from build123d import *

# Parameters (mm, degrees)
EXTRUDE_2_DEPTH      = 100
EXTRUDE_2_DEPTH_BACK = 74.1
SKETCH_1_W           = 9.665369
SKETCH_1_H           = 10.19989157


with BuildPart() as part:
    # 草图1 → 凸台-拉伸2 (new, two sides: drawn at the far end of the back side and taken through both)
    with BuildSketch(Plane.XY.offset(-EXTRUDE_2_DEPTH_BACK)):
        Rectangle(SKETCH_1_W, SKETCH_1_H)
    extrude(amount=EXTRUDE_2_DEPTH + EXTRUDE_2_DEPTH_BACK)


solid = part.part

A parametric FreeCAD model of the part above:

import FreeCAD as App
import Part
import Sketcher

V = App.Vector
Q = App.Units.Quantity


def add_polygon(sketch, points):
    """Adds a closed chain of lines whose ends are joined by coincident constraints."""
    first, n = sketch.GeometryCount, len(points)
    for a, b in zip(points, points[1:] + points[:1]):
        sketch.addGeometry(Part.LineSegment(App.Vector(*a, 0), App.Vector(*b, 0)), False)
    for i in range(n):
        sketch.addConstraint(Sketcher.Constraint("Coincident", first + i, 2, first + (i + 1) % n, 1))

doc = App.newDocument("Part")
body = doc.addObject("PartDesign::Body", "Body")

# Sketch on XY plane
sketch1 = doc.addObject("Sketcher::SketchObject", "Sketch")
body.addObject(sketch1)
sketch1.AttachmentSupport = (doc.XY_Plane, [""])
sketch1.MapMode = "FlatFace"
add_polygon(sketch1, [(-5, 5), (-5, -5), (5, -5), (5, 5)])  # lines 0-3
sketch1.addConstraint([
    Sketcher.Constraint("Vertical", 0),
    Sketcher.Constraint("Horizontal", 1),
    Sketcher.Constraint("Vertical", 2),
    Sketcher.Constraint("Horizontal", 3),
    Sketcher.Constraint("Symmetric", 0, 2, 2, 2, -1, 1),
    Sketcher.Constraint("DistanceX", 1, 1, 1, 2, Q("9.665369 mm")),
    Sketcher.Constraint("DistanceY", 0, 2, 0, 1, Q("10.199892 mm")),
])
pad1 = doc.addObject("PartDesign::Pad", "Pad")
body.addObject(pad1)
pad1.Profile = sketch1
pad1.Type = "TwoLengths"
pad1.Length = 100
pad1.Length2 = 74.1

doc.recompute()
